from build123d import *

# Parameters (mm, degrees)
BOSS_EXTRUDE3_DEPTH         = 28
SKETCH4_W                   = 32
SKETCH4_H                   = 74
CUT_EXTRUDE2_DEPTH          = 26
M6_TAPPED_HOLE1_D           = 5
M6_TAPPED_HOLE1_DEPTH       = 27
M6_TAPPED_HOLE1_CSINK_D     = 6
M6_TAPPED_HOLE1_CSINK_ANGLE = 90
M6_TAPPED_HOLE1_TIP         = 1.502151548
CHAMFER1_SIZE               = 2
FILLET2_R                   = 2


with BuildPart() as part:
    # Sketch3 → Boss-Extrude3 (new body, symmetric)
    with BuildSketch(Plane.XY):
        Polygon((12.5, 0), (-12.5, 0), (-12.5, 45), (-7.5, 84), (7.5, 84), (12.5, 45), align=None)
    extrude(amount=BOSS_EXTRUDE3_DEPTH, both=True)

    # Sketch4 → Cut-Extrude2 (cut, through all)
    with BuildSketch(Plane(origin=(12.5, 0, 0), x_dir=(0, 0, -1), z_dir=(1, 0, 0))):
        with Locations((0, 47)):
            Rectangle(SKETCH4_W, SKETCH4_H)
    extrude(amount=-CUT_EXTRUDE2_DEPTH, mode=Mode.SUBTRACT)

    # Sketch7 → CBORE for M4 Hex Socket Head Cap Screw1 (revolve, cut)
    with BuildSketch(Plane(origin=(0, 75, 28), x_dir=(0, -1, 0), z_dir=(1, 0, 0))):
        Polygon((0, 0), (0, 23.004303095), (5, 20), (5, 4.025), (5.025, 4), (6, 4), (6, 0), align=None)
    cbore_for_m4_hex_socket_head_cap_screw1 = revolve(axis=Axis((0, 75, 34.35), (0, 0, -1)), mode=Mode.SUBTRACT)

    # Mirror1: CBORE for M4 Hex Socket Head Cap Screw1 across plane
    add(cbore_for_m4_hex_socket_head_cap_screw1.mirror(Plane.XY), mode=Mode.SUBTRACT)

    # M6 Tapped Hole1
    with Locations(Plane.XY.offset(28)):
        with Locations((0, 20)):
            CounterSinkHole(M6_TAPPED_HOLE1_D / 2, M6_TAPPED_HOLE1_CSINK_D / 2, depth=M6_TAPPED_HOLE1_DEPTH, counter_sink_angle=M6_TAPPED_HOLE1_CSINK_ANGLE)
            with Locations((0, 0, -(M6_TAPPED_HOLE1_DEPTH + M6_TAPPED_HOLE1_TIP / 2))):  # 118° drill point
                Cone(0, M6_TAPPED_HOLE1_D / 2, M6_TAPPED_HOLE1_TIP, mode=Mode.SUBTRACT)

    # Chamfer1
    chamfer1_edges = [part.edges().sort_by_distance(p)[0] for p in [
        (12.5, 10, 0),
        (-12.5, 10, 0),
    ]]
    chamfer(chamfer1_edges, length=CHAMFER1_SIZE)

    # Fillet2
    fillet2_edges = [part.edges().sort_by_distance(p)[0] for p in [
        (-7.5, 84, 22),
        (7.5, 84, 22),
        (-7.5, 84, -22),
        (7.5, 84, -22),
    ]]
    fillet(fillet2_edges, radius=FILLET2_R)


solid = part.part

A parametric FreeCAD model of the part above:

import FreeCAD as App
import Part
import Sketcher

V = App.Vector
Q = App.Units.Quantity


def edges_at(feature, points):
    """Names of the edges that pass closest to the given points."""
    edges = feature.Shape.Edges
    near = lambda p: min(range(len(edges)), key=lambda i: edges[i].distToShape(Part.Vertex(*p))[0])
    return sorted({f"Edge{near(p) + 1}" for p in points})


def add_polygon(sketch, points):
    """Adds a closed chain of lines whose ends are joined by coincident constraints."""
    first, n = sketch.GeometryCount, len(points)
    for a, b in zip(points, points[1:] + points[:1]):
        sketch.addGeometry(Part.LineSegment(App.Vector(*a, 0), App.Vector(*b, 0)), False)
    for i in range(n):
        sketch.addConstraint(Sketcher.Constraint("Coincident", first + i, 2, first + (i + 1) % n, 1))

doc = App.newDocument("Part")
body = doc.addObject("PartDesign::Body", "Body")

sketch1 = body.newObject("Sketcher::SketchObject", "Sketch")
sketch1.AttachmentSupport = (doc.getObject("XY_Plane"), [""])
sketch1.MapMode = "FlatFace"
add_polygon(sketch1, [(-12.5, 0), (12.5, 0), (12.5, 45), (7.5, 84), (-7.5, 84), (-12.5, 45)])
sketch1.addConstraint([
    Sketcher.Constraint("Horizontal", 0),
    Sketcher.Constraint("Vertical", 1),
    Sketcher.Constraint("Horizontal", 3),
    Sketcher.Constraint("Vertical", 5),
    Sketcher.Constraint("Symmetric", 0, 2, 5, 2, -1, 1),
    Sketcher.Constraint("Horizontal", 1, 2, 4, 2),
    Sketcher.Constraint("Equal", 2, 4),
    Sketcher.Constraint("DistanceX", 0, 1, 0, 2, 25.0),
    Sketcher.Constraint("DistanceX", 3, 2, 3, 1, 15.0),
    Sketcher.Constraint("DistanceY", 1, 1, 1, 2, 45.0),
    Sketcher.Constraint("DistanceY", -1, 1, 2, 2, 84.0),
])
pad1 = body.newObject("PartDesign::Pad", "Pad")
pad1.Profile = sketch1
pad1.Length = 56
pad1.Midplane = True

sketch2 = body.newObject("Sketcher::SketchObject", "Sketch001")
sketch2.AttachmentSupport = (doc.getObject("YZ_Plane"), [""])
sketch2.MapMode = "FlatFace"
sketch2.AttachmentOffset = App.Placement(V(0, 0, 12.5), App.Rotation())
add_polygon(sketch2, [(84, 16), (10, 16), (10, -16), (84, -16)])
sketch2.addConstraint([
    Sketcher.Constraint("Horizontal", 0),
    Sketcher.Constraint("Vertical", 1),
    Sketcher.Constraint("Horizontal", 2),
    Sketcher.Constraint("Vertical", 3),
    Sketcher.Constraint("DistanceX", 0, 2, 0, 1, 74.0),
    Sketcher.Constraint("DistanceY", 1, 2, 1, 1, 32.0),
    Sketcher.Constraint("DistanceX", -1, 1, 0, 2, 10.0),
    Sketcher.Constraint("DistanceY", -1, 1, 0, 2, 16.0),
])
pocket1 = body.newObject("PartDesign::Pocket", "Pocket")
pocket1.Profile = sketch2
pocket1.Type = "ThroughAll"

sketch3 = body.newObject("Sketcher::SketchObject", "Sketch002")
sketch3.AttachmentSupport = (doc.getObject("YZ_Plane"), [""])
sketch3.MapMode = "FlatFace"
add_polygon(sketch3, [(75, 4.995697), (75, 28), (69, 28), (69, 24), (69.975, 24), (70, 23.975), (70, 8)])
sketch3.addGeometry(Part.LineSegment(V(75, 28, 0), V(75, 4.995697, 0)), True)
sketch3.addConstraint([
    Sketcher.Constraint("Vertical", 0),
    Sketcher.Constraint("Horizontal", 1),
    Sketcher.Constraint("Vertical", 2),
    Sketcher.Constraint("Horizontal", 3),
    Sketcher.Constraint("Vertical", 5),
    Sketcher.Constraint("Vertical", 7),
    Sketcher.Constraint("Coincident", 7, 1, 0, 2),
    Sketcher.Constraint("Equal", 0, 7),
    Sketcher.Constraint("DistanceX", 1, 2, 1, 1, 6.0),
    Sketcher.Constraint("DistanceY", 2, 2, 2, 1, 4.0),
    Sketcher.Constraint("Angle", 4, Q("-45 deg")),
    Sketcher.Constraint("Angle", 6, Q("-31 deg")),
    Sketcher.Constraint("DistanceX", -1, 1, 0, 2, 75.0),
    Sketcher.Constraint("DistanceY", -1, 1, 0, 2, 28.0),
    Sketcher.Constraint("DistanceX", -1, 1, 4, 2, 70.0),
    Sketcher.Constraint("DistanceY", -1, 1, 5, 2, 8.0),
    Sketcher.Constraint("DistanceX", 3, 1, 3, 2, 0.975),
])
groove = body.newObject("PartDesign::Groove", "Groove")
groove.Profile = sketch3
groove.ReferenceAxis = (sketch3, ["Axis0"])
groove.Angle = 360
doc.recompute()

mirrored = body.newObject("PartDesign::Mirrored", "Mirrored")
mirrored.Originals = [groove]
mirrored.MirrorPlane = (doc.getObject("XY_Plane"), [""])
body.Tip = mirrored

sketch4 = body.newObject("Sketcher::SketchObject", "Sketch003")
sketch4.AttachmentSupport = (doc.getObject("XY_Plane"), [""])
sketch4.MapMode = "FlatFace"
sketch4.AttachmentOffset = App.Placement(V(0, 0, 28), App.Rotation())
sketch4.addGeometry(Part.Circle(V(0, 20, 0), V(0, 0, 1), 2.5), False)
sketch4.addConstraint([
    Sketcher.Constraint("PointOnObject", 0, 3, -2),
    Sketcher.Constraint("Diameter", 0, 5.0),
    Sketcher.Constraint("DistanceY", -1, 1, 0, 3, 20.0),
])
doc.recompute()
hole = body.newObject("PartDesign::Hole", "Hole")
hole.Profile = sketch4
hole.ThreadType = "None"
hole.Diameter = 5
hole.DepthType = "Dimension"
hole.Depth = 27
hole.DrillPoint = "Angled"
hole.DrillPointAngle = 118
hole.HoleCutType = "Countersink"
hole.HoleCutDiameter = 6
hole.HoleCutCountersinkAngle = 90
doc.recompute()

chamfer = body.newObject("PartDesign::Chamfer", "Chamfer")
chamfer.Base = (hole, edges_at(hole, [(12.5, 10, 0), (-12.5, 10, 0)]))
chamfer.Size = 2
doc.recompute()

fillet = body.newObject("PartDesign::Fillet", "Fillet")
fillet.Base = (chamfer, edges_at(chamfer, [
    (-7.5, 84, 22),
    (7.5, 84, 22),
    (-7.5, 84, -22),
    (7.5, 84, -22),
]))
fillet.Radius = 2

doc.recompute()
